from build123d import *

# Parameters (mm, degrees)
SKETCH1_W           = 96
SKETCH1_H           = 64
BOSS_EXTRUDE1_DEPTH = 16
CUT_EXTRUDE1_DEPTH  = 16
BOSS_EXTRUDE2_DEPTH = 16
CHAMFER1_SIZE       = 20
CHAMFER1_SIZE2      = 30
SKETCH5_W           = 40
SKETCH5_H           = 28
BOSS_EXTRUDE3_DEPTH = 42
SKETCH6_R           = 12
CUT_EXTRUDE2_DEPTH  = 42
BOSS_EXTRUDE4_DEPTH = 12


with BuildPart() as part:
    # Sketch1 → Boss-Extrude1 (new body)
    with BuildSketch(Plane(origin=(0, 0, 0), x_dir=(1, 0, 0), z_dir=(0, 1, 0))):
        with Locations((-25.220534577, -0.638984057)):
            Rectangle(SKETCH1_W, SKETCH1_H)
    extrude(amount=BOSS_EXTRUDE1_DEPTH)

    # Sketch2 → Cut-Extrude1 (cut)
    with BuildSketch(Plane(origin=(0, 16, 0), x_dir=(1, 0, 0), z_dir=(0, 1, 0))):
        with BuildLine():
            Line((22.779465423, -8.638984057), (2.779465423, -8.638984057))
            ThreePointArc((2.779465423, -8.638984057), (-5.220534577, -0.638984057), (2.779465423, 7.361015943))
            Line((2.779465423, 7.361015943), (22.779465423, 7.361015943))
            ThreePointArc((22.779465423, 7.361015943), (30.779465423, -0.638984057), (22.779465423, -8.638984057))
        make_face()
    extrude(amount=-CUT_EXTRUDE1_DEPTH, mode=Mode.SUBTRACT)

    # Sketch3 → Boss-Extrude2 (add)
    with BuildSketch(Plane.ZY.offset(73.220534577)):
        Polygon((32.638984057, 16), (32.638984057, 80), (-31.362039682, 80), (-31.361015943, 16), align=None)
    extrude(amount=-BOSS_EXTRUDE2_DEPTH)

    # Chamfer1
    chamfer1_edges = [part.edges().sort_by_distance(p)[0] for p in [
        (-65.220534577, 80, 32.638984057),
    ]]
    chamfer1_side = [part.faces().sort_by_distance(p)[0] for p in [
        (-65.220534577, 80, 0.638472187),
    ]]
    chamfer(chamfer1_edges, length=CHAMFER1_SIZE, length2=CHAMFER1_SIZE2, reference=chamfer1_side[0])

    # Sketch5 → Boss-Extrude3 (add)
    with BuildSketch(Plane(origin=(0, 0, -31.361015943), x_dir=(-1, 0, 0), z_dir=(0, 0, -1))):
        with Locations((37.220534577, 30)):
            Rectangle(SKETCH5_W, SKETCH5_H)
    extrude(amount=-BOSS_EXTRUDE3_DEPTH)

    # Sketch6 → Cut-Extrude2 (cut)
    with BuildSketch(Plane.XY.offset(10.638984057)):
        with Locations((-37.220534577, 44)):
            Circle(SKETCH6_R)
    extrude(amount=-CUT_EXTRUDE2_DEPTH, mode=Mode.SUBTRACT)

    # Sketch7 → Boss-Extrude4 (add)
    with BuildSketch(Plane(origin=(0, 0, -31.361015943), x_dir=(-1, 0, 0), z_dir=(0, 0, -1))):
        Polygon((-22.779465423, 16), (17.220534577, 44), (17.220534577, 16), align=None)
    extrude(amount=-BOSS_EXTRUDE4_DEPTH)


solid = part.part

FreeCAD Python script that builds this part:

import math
import FreeCAD as App
import Part
import Sketcher
Q = App.Units.Quantity


def edges_at(feature, points):
    """Names of the edges that pass closest to the given points."""
    edges = feature.Shape.Edges
    near = lambda p: min(range(len(edges)), key=lambda i: edges[i].distToShape(Part.Vertex(*p))[0])
    return sorted({f"Edge{near(p) + 1}" for p in points})

doc = App.newDocument("Part")
params = doc.addObject("Spreadsheet::Sheet", "Params")
for row, (alias, value) in enumerate([
    ("sketch1_width", "96 mm"),
    ("sketch1_height", "64 mm"),
    ("pad1_length", "16 mm"),
    ("sketch2_radius", "8 mm"),
    ("sketch2_width", "20 mm"),
    ("pocket1_length", "16 mm"),
    ("sketch3_width", "64 mm"),
    ("pad2_length", "16 mm"),
    ("chamfer_size", "20 mm"),
    ("chamfer_size2", "30 mm"),
    ("sketch4_width", "40 mm"),
    ("sketch4_height", "28 mm"),
    ("pad3_length", "42 mm"),
    ("sketch5_diameter", "24 mm"),
    ("pocket2_length", "42 mm"),
    ("sketch6_width", "40 mm"),
    ("sketch6_height", "28 mm"),
    ("pad4_length", "12 mm"),
], start=1):
    params.set(f"A{row}", alias)
    params.set(f"B{row}", "=" + value)
    params.setAlias(f"B{row}", alias)

body = doc.addObject("PartDesign::Body", "Body")

# Sketch on XZ plane
sketch1 = body.newObject("Sketcher::SketchObject", "Sketch")
sketch1.AttachmentSupport = (doc.getObject("XZ_Plane"), [""])
sketch1.MapMode = "FlatFace"
sketch1.addGeometry(Part.LineSegment(App.Vector(-73.220535, -31.361016, 0), App.Vector(-73.220535, 32.638984, 0)), False)
sketch1.addGeometry(Part.LineSegment(App.Vector(-73.220535, 32.638984, 0), App.Vector(22.779465, 32.638984, 0)), False)
sketch1.addGeometry(Part.LineSegment(App.Vector(22.779465, 32.638984, 0), App.Vector(22.779465, -31.361016, 0)), False)
sketch1.addGeometry(Part.LineSegment(App.Vector(22.779465, -31.361016, 0), App.Vector(-73.220535, -31.361016, 0)), False)
sketch1.addConstraint(Sketcher.Constraint("Coincident", 0, 2, 1, 1))
sketch1.addConstraint(Sketcher.Constraint("Coincident", 1, 2, 2, 1))
sketch1.addConstraint(Sketcher.Constraint("Coincident", 2, 2, 3, 1))
sketch1.addConstraint(Sketcher.Constraint("Coincident", 3, 2, 0, 1))
sketch1.addConstraint(Sketcher.Constraint("Vertical", 0))
sketch1.addConstraint(Sketcher.Constraint("Horizontal", 1))
sketch1.addConstraint(Sketcher.Constraint("Vertical", 2))
sketch1.addConstraint(Sketcher.Constraint("Horizontal", 3))
sketch1.addConstraint(Sketcher.Constraint("DistanceX", 1, 1, 1, 2, Q("96 mm")))
sketch1.addConstraint(Sketcher.Constraint("DistanceY", 0, 1, 0, 2, Q("64 mm")))
sketch1.addConstraint(Sketcher.Constraint("DistanceX", 0, 2, -1, 1, Q("73.220535 mm")))
sketch1.addConstraint(Sketcher.Constraint("DistanceY", -1, 1, 0, 2, Q("32.638984 mm")))
sketch1.setExpression("Constraints[8]", "Params.sketch1_width")
sketch1.setExpression("Constraints[9]", "Params.sketch1_height")
pad1 = body.newObject("PartDesign::Pad", "Pad")
pad1.Profile = sketch1
pad1.setExpression("Length", "Params.pad1_length")
pad1.Reversed = True

# Sketch on XZ plane
sketch2 = body.newObject("Sketcher::SketchObject", "Sketch001")
sketch2.AttachmentSupport = (doc.getObject("XZ_Plane"), [""])
sketch2.MapMode = "FlatFace"
sketch2.AttachmentOffset = App.Placement(App.Vector(0, 0, -16), App.Rotation())
sketch2.addGeometry(Part.LineSegment(App.Vector(2.779465, 8.638984, 0), App.Vector(22.779465, 8.638984, 0)), False)
sketch2.addGeometry(Part.ArcOfCircle(Part.Circle(App.Vector(22.779465, 0.638984, 0), App.Vector(0, 0, 1), 8), math.radians(-90), math.radians(90)), False)
sketch2.addGeometry(Part.LineSegment(App.Vector(22.779465, -7.361016, 0), App.Vector(2.779465, -7.361016, 0)), False)
sketch2.addGeometry(Part.ArcOfCircle(Part.Circle(App.Vector(2.779465, 0.638984, 0), App.Vector(0, 0, 1), 8), math.radians(90), math.radians(270)), False)
sketch2.addConstraint(Sketcher.Constraint("Tangent", 0, 2, 1, 2))
sketch2.addConstraint(Sketcher.Constraint("Tangent", 1, 1, 2, 1))
sketch2.addConstraint(Sketcher.Constraint("Tangent", 2, 2, 3, 2))
sketch2.addConstraint(Sketcher.Constraint("Tangent", 3, 1, 0, 1))
sketch2.addConstraint(Sketcher.Constraint("Horizontal", 0))
sketch2.addConstraint(Sketcher.Constraint("Horizontal", 2))
sketch2.addConstraint(Sketcher.Constraint("Radius", 1, Q("8 mm")))
sketch2.addConstraint(Sketcher.Constraint("DistanceX", 0, 1, 0, 2, Q("20 mm")))
sketch2.addConstraint(Sketcher.Constraint("DistanceX", -1, 1, 1, 3, Q("22.779465 mm")))
sketch2.addConstraint(Sketcher.Constraint("DistanceY", -1, 1, 1, 3, Q("0.638984 mm")))
sketch2.setExpression("Constraints[6]", "Params.sketch2_radius")
sketch2.setExpression("Constraints[7]", "Params.sketch2_width")
pocket1 = body.newObject("PartDesign::Pocket", "Pocket")
pocket1.Profile = sketch2
pocket1.setExpression("Length", "Params.pocket1_length")
pocket1.Reversed = True

# Sketch on YZ plane
sketch3 = body.newObject("Sketcher::SketchObject", "Sketch002")
sketch3.AttachmentSupport = (doc.getObject("YZ_Plane"), [""])
sketch3.MapMode = "FlatFace"
sketch3.AttachmentOffset = App.Placement(App.Vector(0, 0, -73.220535), App.Rotation())
sketch3.addGeometry(Part.LineSegment(App.Vector(16, 32.638984, 0), App.Vector(80, 32.638984, 0)), False)
sketch3.addGeometry(Part.LineSegment(App.Vector(80, 32.638984, 0), App.Vector(80, -31.36204, 0)), False)
sketch3.addGeometry(Part.LineSegment(App.Vector(80, -31.36204, 0), App.Vector(16, -31.361016, 0)), False)
sketch3.addGeometry(Part.LineSegment(App.Vector(16, -31.361016, 0), App.Vector(16, 32.638984, 0)), False)
sketch3.addConstraint(Sketcher.Constraint("Coincident", 0, 2, 1, 1))
sketch3.addConstraint(Sketcher.Constraint("Coincident", 1, 2, 2, 1))
sketch3.addConstraint(Sketcher.Constraint("Coincident", 2, 2, 3, 1))
sketch3.addConstraint(Sketcher.Constraint("Coincident", 3, 2, 0, 1))
sketch3.addConstraint(Sketcher.Constraint("Horizontal", 0))
sketch3.addConstraint(Sketcher.Constraint("Vertical", 1))
sketch3.addConstraint(Sketcher.Constraint("Vertical", 3))
sketch3.addConstraint(Sketcher.Constraint("Equal", 0, 3))
sketch3.addConstraint(Sketcher.Constraint("DistanceX", 0, 1, 0, 2, Q("64 mm")))
sketch3.addConstraint(Sketcher.Constraint("DistanceX", -1, 1, 0, 2, Q("80 mm")))
sketch3.addConstraint(Sketcher.Constraint("DistanceY", 1, 2, 1, 1, Q("64.001024 mm")))
sketch3.addConstraint(Sketcher.Constraint("DistanceY", 1, 2, -1, 1, Q("31.36204 mm")))
sketch3.setExpression("Constraints[8]", "Params.sketch3_width")
pad2 = body.newObject("PartDesign::Pad", "Pad001")
pad2.Profile = sketch3
pad2.setExpression("Length", "Params.pad2_length")
doc.recompute()

chamfer = body.newObject("PartDesign::Chamfer", "Chamfer")
chamfer.Base = (pad2, edges_at(pad2, [(-65.221, 80, 32.639)]))
chamfer.ChamferType = "Two distances"
chamfer.setExpression("Size", "Params.chamfer_size")
chamfer.setExpression("Size2", "Params.chamfer_size2")

# Sketch on XY plane
sketch4 = body.newObject("Sketcher::SketchObject", "Sketch003")
sketch4.AttachmentSupport = (doc.getObject("XY_Plane"), [""])
sketch4.MapMode = "FlatFace"
sketch4.AttachmentOffset = App.Placement(App.Vector(0, 0, -31.361016), App.Rotation())
sketch4.addGeometry(Part.LineSegment(App.Vector(-17.220535, 44, 0), App.Vector(-17.220535, 16, 0)), False)
sketch4.addGeometry(Part.LineSegment(App.Vector(-17.220535, 16, 0), App.Vector(-57.220535, 16, 0)), False)
sketch4.addGeometry(Part.LineSegment(App.Vector(-57.220535, 16, 0), App.Vector(-57.220535, 44, 0)), False)
sketch4.addGeometry(Part.LineSegment(App.Vector(-57.220535, 44, 0), App.Vector(-17.220535, 44, 0)), False)
sketch4.addConstraint(Sketcher.Constraint("Coincident", 0, 2, 1, 1))
sketch4.addConstraint(Sketcher.Constraint("Coincident", 1, 2, 2, 1))
sketch4.addConstraint(Sketcher.Constraint("Coincident", 2, 2, 3, 1))
sketch4.addConstraint(Sketcher.Constraint("Coincident", 3, 2, 0, 1))
sketch4.addConstraint(Sketcher.Constraint("Vertical", 0))
sketch4.addConstraint(Sketcher.Constraint("Horizontal", 1))
sketch4.addConstraint(Sketcher.Constraint("Vertical", 2))
sketch4.addConstraint(Sketcher.Constraint("Horizontal", 3))
sketch4.addConstraint(Sketcher.Constraint("DistanceX", 1, 2, 1, 1, Q("40 mm")))
sketch4.addConstraint(Sketcher.Constraint("DistanceY", 0, 2, 0, 1, Q("28 mm")))
sketch4.addConstraint(Sketcher.Constraint("DistanceY", -1, 1, 0, 2, Q("16 mm")))
sketch4.addConstraint(Sketcher.Constraint("DistanceX", 0, 2, -1, 1, Q("17.220535 mm")))
sketch4.setExpression("Constraints[8]", "Params.sketch4_width")
sketch4.setExpression("Constraints[9]", "Params.sketch4_height")
pad3 = body.newObject("PartDesign::Pad", "Pad002")
pad3.Profile = sketch4
pad3.setExpression("Length", "Params.pad3_length")

# Sketch on XY plane
sketch5 = body.newObject("Sketcher::SketchObject", "Sketch004")
sketch5.AttachmentSupport = (doc.getObject("XY_Plane"), [""])
sketch5.MapMode = "FlatFace"
sketch5.AttachmentOffset = App.Placement(App.Vector(0, 0, 10.638984), App.Rotation())
sketch5.addGeometry(Part.Circle(App.Vector(-37.220535, 44, 0), App.Vector(0, 0, 1), 12), False)
sketch5.addConstraint(Sketcher.Constraint("Diameter", 0, Q("24 mm")))
sketch5.addConstraint(Sketcher.Constraint("DistanceY", -1, 1, 0, 3, Q("44 mm")))
sketch5.addConstraint(Sketcher.Constraint("DistanceX", 0, 3, -1, 1, Q("37.220535 mm")))
sketch5.setExpression("Constraints[0]", "Params.sketch5_diameter")
pocket2 = body.newObject("PartDesign::Pocket", "Pocket001")
pocket2.Profile = sketch5
pocket2.setExpression("Length", "Params.pocket2_length")

# Sketch on XY plane
sketch6 = body.newObject("Sketcher::SketchObject", "Sketch005")
sketch6.AttachmentSupport = (doc.getObject("XY_Plane"), [""])
sketch6.MapMode = "FlatFace"
sketch6.AttachmentOffset = App.Placement(App.Vector(0, 0, -31.361016), App.Rotation())
sketch6.addGeometry(Part.LineSegment(App.Vector(-17.220535, 44, 0), App.Vector(22.779465, 16, 0)), False)
sketch6.addGeometry(Part.LineSegment(App.Vector(22.779465, 16, 0), App.Vector(-17.220535, 16, 0)), False)
sketch6.addGeometry(Part.LineSegment(App.Vector(-17.220535, 16, 0), App.Vector(-17.220535, 44, 0)), False)
sketch6.addConstraint(Sketcher.Constraint("Coincident", 0, 2, 1, 1))
sketch6.addConstraint(Sketcher.Constraint("Coincident", 1, 2, 2, 1))
sketch6.addConstraint(Sketcher.Constraint("Coincident", 2, 2, 0, 1))
sketch6.addConstraint(Sketcher.Constraint("Horizontal", 1))
sketch6.addConstraint(Sketcher.Constraint("Vertical", 2))
sketch6.addConstraint(Sketcher.Constraint("DistanceX", 1, 2, 1, 1, Q("40 mm")))
sketch6.addConstraint(Sketcher.Constraint("DistanceY", 2, 1, 2, 2, Q("28 mm")))
sketch6.addConstraint(Sketcher.Constraint("DistanceY", -1, 1, 0, 2, Q("16 mm")))
sketch6.addConstraint(Sketcher.Constraint("DistanceX", -1, 1, 0, 2, Q("22.779465 mm")))
sketch6.setExpression("Constraints[5]", "Params.sketch6_width")
sketch6.setExpression("Constraints[6]", "Params.sketch6_height")
pad4 = body.newObject("PartDesign::Pad", "Pad003")
pad4.Profile = sketch6
pad4.setExpression("Length", "Params.pad4_length")

doc.recompute()
